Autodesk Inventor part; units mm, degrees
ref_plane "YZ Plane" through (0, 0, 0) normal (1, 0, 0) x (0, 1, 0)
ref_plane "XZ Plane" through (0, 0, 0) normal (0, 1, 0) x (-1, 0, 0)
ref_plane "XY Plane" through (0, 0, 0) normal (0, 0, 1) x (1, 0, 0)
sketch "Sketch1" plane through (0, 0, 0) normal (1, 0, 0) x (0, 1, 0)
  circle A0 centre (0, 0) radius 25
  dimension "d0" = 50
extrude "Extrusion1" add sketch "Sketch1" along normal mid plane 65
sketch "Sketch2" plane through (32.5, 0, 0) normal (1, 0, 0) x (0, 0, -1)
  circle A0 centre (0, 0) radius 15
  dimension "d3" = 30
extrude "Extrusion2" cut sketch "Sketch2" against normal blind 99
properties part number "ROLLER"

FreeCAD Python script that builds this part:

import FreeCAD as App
import Part
import Sketcher

V = App.Vector
Q = App.Units.Quantity

doc = App.newDocument("Part")
body = doc.addObject("PartDesign::Body", "Body")

# Sketch on YZ plane
sketch1 = doc.addObject("Sketcher::SketchObject", "Sketch")
body.addObject(sketch1)
sketch1.AttachmentSupport = (doc.YZ_Plane, [""])
sketch1.MapMode = "FlatFace"
sketch1.addGeometry(Part.Circle(V(0, 0, 0), V(0, 0, 1), 25), False)
sketch1.addConstraint(Sketcher.Constraint("Coincident", 0, 3, -1, 1))
sketch1.addConstraint(Sketcher.Constraint("Diameter", 0, Q("50 mm")))
pad1 = doc.addObject("PartDesign::Pad", "Pad")
body.addObject(pad1)
pad1.Profile = sketch1
pad1.Length = 65
pad1.Midplane = True

# Sketch on YZ plane
sketch2 = doc.addObject("Sketcher::SketchObject", "Sketch001")
body.addObject(sketch2)
sketch2.AttachmentSupport = (doc.YZ_Plane, [""])
sketch2.MapMode = "FlatFace"
sketch2.AttachmentOffset = App.Placement(V(0, 0, 32.5), App.Rotation())
sketch2.addGeometry(Part.Circle(V(0, 0, 0), V(0, 0, 1), 15), False)
sketch2.addConstraint(Sketcher.Constraint("Coincident", 0, 3, -1, 1))
sketch2.addConstraint(Sketcher.Constraint("Diameter", 0, Q("30 mm")))
pocket1 = doc.addObject("PartDesign::Pocket", "Pocket")
body.addObject(pocket1)
pocket1.Profile = sketch2
pocket1.Length = 99

doc.recompute()
